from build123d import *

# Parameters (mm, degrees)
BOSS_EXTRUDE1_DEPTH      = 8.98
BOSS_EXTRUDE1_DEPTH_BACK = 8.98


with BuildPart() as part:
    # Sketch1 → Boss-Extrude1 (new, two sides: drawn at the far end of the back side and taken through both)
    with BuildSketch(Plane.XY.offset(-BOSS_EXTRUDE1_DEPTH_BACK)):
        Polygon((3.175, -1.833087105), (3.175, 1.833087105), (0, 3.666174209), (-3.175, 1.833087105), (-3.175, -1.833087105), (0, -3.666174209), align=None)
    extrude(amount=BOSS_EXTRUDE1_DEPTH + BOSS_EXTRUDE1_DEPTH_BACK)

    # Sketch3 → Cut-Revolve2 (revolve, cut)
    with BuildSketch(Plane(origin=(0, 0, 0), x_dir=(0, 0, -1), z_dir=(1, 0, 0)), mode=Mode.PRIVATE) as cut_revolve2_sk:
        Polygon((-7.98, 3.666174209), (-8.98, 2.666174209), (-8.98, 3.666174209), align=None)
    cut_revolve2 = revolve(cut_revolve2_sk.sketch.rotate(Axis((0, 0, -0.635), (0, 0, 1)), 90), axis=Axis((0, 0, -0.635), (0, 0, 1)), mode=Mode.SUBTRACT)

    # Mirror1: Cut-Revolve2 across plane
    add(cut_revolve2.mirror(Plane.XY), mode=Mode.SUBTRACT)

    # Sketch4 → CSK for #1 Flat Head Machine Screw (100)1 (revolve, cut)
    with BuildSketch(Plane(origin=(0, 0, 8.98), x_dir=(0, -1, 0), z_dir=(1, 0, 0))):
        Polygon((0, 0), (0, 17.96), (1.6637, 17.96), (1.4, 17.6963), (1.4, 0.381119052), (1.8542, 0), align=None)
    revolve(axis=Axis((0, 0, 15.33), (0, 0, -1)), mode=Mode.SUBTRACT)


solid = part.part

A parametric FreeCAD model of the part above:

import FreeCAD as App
import Part
import Sketcher
Q = App.Units.Quantity


def add_polygon(sketch, points):
    """Adds a closed chain of lines whose ends are joined by coincident constraints."""
    first, n = sketch.GeometryCount, len(points)
    for a, b in zip(points, points[1:] + points[:1]):
        sketch.addGeometry(Part.LineSegment(App.Vector(*a, 0), App.Vector(*b, 0)), False)
    for i in range(n):
        sketch.addConstraint(Sketcher.Constraint("Coincident", first + i, 2, first + (i + 1) % n, 1))

doc = App.newDocument("Part")
body = doc.addObject("PartDesign::Body", "Body")

sketch1 = doc.addObject("Sketcher::SketchObject", "Sketch")
body.addObject(sketch1)
sketch1.AttachmentSupport = (doc.XY_Plane, [""])
sketch1.MapMode = "FlatFace"
add_polygon(sketch1, [(3.2, -1.8), (3.2, 1.8), (0, 3.7), (-3.2, 1.8), (-3.2, -1.8), (0, -3.7)])
sketch1.addConstraint([
    Sketcher.Constraint("Vertical", 0),
    Sketcher.Constraint("Vertical", 3),
    Sketcher.Constraint("Symmetric", 0, 2, 3, 2, -1, 1),
    Sketcher.Constraint("Symmetric", 1, 2, 4, 2, -1, 1),
    Sketcher.Constraint("PointOnObject", 1, 2, -2),
    Sketcher.Constraint("Parallel", 2, 5),
    Sketcher.Constraint("Horizontal", 0, 2, 2, 2),
    Sketcher.Constraint("Angle", 1, Q("150 deg")),
    Sketcher.Constraint("DistanceX", 2, 2, 0, 2, 6.35),
    Sketcher.Constraint("DistanceY", 0, 1, 0, 2, 3.666174),
])
pad1 = doc.addObject("PartDesign::Pad", "Pad")
body.addObject(pad1)
pad1.Profile = sketch1
pad1.Type = "TwoLengths"
pad1.Length = 8.98
pad1.Length2 = 8.98

sketch2 = doc.addObject("Sketcher::SketchObject", "Sketch001")
body.addObject(sketch2)
sketch2.AttachmentSupport = (doc.YZ_Plane, [""])
sketch2.MapMode = "FlatFace"
add_polygon(sketch2, [(2.7, 9), (3.7, 8), (3.7, 9)])
sketch2.addConstraint([
    Sketcher.Constraint("Vertical", 1),
    Sketcher.Constraint("Horizontal", 2),
    Sketcher.Constraint("Equal", 2, 1),
    Sketcher.Constraint("DistanceX", 2, 2, 2, 1, 1.0),
    Sketcher.Constraint("DistanceY", -1, 1, 0, 2, 7.98),
    Sketcher.Constraint("DistanceX", -1, 1, 0, 2, 3.666174),
])
groove = doc.addObject("PartDesign::Groove", "Groove")
body.addObject(groove)
groove.Profile = sketch2
groove.ReferenceAxis = (sketch2, ["V_Axis"])
groove.Angle = 360
doc.recompute()

mirrored = doc.addObject("PartDesign::Mirrored", "Mirrored")
body.addObject(mirrored)
mirrored.Originals = [groove]
mirrored.MirrorPlane = (doc.XY_Plane, [""])
body.Tip = mirrored

sketch3 = doc.addObject("Sketcher::SketchObject", "Sketch002")
body.addObject(sketch3)
sketch3.AttachmentSupport = (doc.YZ_Plane, [""])
sketch3.MapMode = "FlatFace"
add_polygon(sketch3, [(0, -8.98), (0, 8.98), (-1.85, 8.98), (-1.4, 8.6), (-1.4, -8.72), (-1.66, -8.98)])
sketch3.addConstraint([
    Sketcher.Constraint("Vertical", 0),
    Sketcher.Constraint("Horizontal", 1),
    Sketcher.Constraint("Vertical", 3),
    Sketcher.Constraint("Horizontal", 5),
    Sketcher.Constraint("Symmetric", 0, 2, 5, 2, -1, 1),
    Sketcher.Constraint("Angle", 2, Q("-40 deg")),
    Sketcher.Constraint("Angle", 4, Q("-135 deg")),
    Sketcher.Constraint("DistanceY", 0, 1, 0, 2, 17.96),
    Sketcher.Constraint("DistanceX", 2, 2, -1, 1, 1.4),
    Sketcher.Constraint("DistanceX", 1, 2, 1, 1, 1.8542),
    Sketcher.Constraint("DistanceX", 5, 1, 5, 2, 1.6637),
])
groove2 = doc.addObject("PartDesign::Groove", "Groove001")
body.addObject(groove2)
groove2.Profile = sketch3
groove2.ReferenceAxis = (sketch3, ["V_Axis"])
groove2.Angle = 360

doc.recompute()
